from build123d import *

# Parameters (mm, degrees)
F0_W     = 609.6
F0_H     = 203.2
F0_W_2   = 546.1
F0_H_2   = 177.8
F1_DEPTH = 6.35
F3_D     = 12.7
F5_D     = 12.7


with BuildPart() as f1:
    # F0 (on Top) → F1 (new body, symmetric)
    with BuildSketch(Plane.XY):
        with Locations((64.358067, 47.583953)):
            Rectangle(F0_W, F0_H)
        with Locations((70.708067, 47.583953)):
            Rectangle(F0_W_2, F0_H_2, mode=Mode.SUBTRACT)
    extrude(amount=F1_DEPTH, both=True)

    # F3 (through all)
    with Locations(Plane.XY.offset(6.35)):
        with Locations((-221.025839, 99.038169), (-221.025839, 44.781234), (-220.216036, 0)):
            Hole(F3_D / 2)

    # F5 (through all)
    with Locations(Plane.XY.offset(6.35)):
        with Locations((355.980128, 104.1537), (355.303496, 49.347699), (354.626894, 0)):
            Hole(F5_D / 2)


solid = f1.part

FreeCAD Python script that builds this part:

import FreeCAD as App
import Part
import Sketcher
from FreeCAD import Vector
Q = App.Units.Quantity


def add_polygon(sketch, points):
    """Adds a closed chain of lines whose ends are joined by coincident constraints."""
    first, n = sketch.GeometryCount, len(points)
    for a, b in zip(points, points[1:] + points[:1]):
        sketch.addGeometry(Part.LineSegment(App.Vector(*a, 0), App.Vector(*b, 0)), False)
    for i in range(n):
        sketch.addConstraint(Sketcher.Constraint("Coincident", first + i, 2, first + (i + 1) % n, 1))

doc = App.newDocument("Part")
params = doc.addObject("Spreadsheet::Sheet", "Params")
for row, (alias, value) in enumerate([
    ("sketch1_width", "24 in"),
    ("sketch1_height", "8 in"),
    ("sketch1_height2", "7 in"),
    ("sketch1_width2", "21.5 in"),
    ("pad1_length", "0.5 in"),
    ("sketch2_diameter", "0.5 in"),
    ("hole_diameter", "0.5 in"),
    ("sketch3_diameter", "0.5 in"),
    ("hole2_diameter", "0.5 in"),
], start=1):
    params.set(f"A{row}", alias)
    params.set(f"B{row}", "=" + value)
    params.setAlias(f"B{row}", alias)

body = doc.addObject("PartDesign::Body", "Body")

# Sketch on XY plane
sketch1 = body.newObject("Sketcher::SketchObject", "Sketch")
sketch1.AttachmentSupport = (doc.getObject("XY_Plane"), [""])
sketch1.MapMode = "FlatFace"
add_polygon(sketch1, [(-240.441933, 149.183953), (-240.441933, -54.016047), (369.158067, -54.016047), (369.158067, 149.183953)])  # lines 0-3
add_polygon(sketch1, [(343.758067, -41.316047), (-202.341933, -41.316047), (-202.341933, 136.483953), (343.758067, 136.483953)])  # lines 4-7
sketch1.addConstraint([
    Sketcher.Constraint("Vertical", 0),
    Sketcher.Constraint("Horizontal", 1),
    Sketcher.Constraint("Vertical", 2),
    Sketcher.Constraint("Horizontal", 3),
    Sketcher.Constraint("Horizontal", 4),
    Sketcher.Constraint("Vertical", 5),
    Sketcher.Constraint("Horizontal", 6),
    Sketcher.Constraint("Vertical", 7),
    Sketcher.Constraint("DistanceX", 1, 1, 1, 2, Q("24 in")),
    Sketcher.Constraint("DistanceY", 0, 2, 0, 1, Q("8 in")),
    Sketcher.Constraint("DistanceY", 5, 1, 5, 2, Q("7 in")),
    Sketcher.Constraint("DistanceX", 4, 2, 4, 1, Q("21.5 in")),
    Sketcher.Constraint("DistanceX", 6, 2, 2, 2, Q("1 in")),
    Sketcher.Constraint("DistanceY", 0, 2, 4, 2, Q("0.5 in")),
    Sketcher.Constraint("DistanceX", 0, 2, -1, 1, 240.441933),
    Sketcher.Constraint("DistanceY", 0, 2, -1, 1, 54.016047),
])
sketch1.setExpression("Constraints[16]", "Params.sketch1_width")
sketch1.setExpression("Constraints[17]", "Params.sketch1_height")
sketch1.setExpression("Constraints[18]", "Params.sketch1_height2")
sketch1.setExpression("Constraints[19]", "Params.sketch1_width2")
pad1 = body.newObject("PartDesign::Pad", "Pad")
pad1.Profile = sketch1
pad1.setExpression("Length", "Params.pad1_length")
pad1.Midplane = True

# Sketch on XY plane
sketch2 = body.newObject("Sketcher::SketchObject", "Sketch001")
sketch2.AttachmentSupport = (doc.getObject("XY_Plane"), [""])
sketch2.MapMode = "FlatFace"
sketch2.AttachmentOffset = App.Placement(Vector(0, 0, 0.25 * 25.4), App.Rotation())
sketch2.addGeometry([
    Part.Circle(Vector(-221.025839, 99.038169, 0), Vector(0, 0, 1), 6.35),
    Part.Circle(Vector(-221.025839, 44.781234, 0), Vector(0, 0, 1), 6.35),
    Part.Circle(Vector(-220.216036, 0, 0), Vector(0, 0, 1), 6.35),
], False)
sketch2.addConstraint([
    Sketcher.Constraint("Equal", 0, 1),
    Sketcher.Constraint("Equal", 1, 2),
    Sketcher.Constraint("PointOnObject", 2, 3, -1),
    Sketcher.Constraint("Vertical", 0, 3, 1, 3),
    Sketcher.Constraint("Diameter", 0, Q("0.5 in")),
    Sketcher.Constraint("DistanceY", 1, 3, 0, 3, Q("2.1360998 in")),
    Sketcher.Constraint("DistanceX", 0, 3, -1, 1, 221.025839),
    Sketcher.Constraint("DistanceY", -1, 1, 0, 3, 99.038169),
    Sketcher.Constraint("DistanceX", 2, 3, -1, 1, 220.216036),
])
sketch2.setExpression("Constraints[4]", "Params.sketch2_diameter")
doc.recompute()
hole = body.newObject("PartDesign::Hole", "Hole")
hole.Profile = sketch2
hole.ThreadType = "None"
hole.setExpression("Diameter", "Params.hole_diameter")
hole.DepthType = "ThroughAll"

# Sketch on XY plane
sketch3 = body.newObject("Sketcher::SketchObject", "Sketch002")
sketch3.AttachmentSupport = (doc.getObject("XY_Plane"), [""])
sketch3.MapMode = "FlatFace"
sketch3.AttachmentOffset = App.Placement(Vector(0, 0, 0.25 * 25.4), App.Rotation())
sketch3.addGeometry([
    Part.Circle(Vector(355.980128, 104.1537, 0), Vector(0, 0, 1), 6.35),
    Part.Circle(Vector(355.303496, 49.347699, 0), Vector(0, 0, 1), 6.35),
    Part.Circle(Vector(354.626894, 0, 0), Vector(0, 0, 1), 6.35),
], False)
sketch3.addConstraint([
    Sketcher.Constraint("Equal", 0, 1),
    Sketcher.Constraint("Equal", 1, 2),
    Sketcher.Constraint("PointOnObject", 2, 3, -1),
    Sketcher.Constraint("Diameter", 0, Q("0.5 in")),
    Sketcher.Constraint("DistanceY", -1, 1, 0, 3, 104.1537),
    Sketcher.Constraint("DistanceY", -1, 1, 1, 3, 49.347699),
    Sketcher.Constraint("DistanceX", -1, 1, 0, 3, 355.980128),
    Sketcher.Constraint("DistanceX", 1, 3, 0, 3, 0.676632),
    Sketcher.Constraint("DistanceX", -1, 1, 2, 3, 354.626894),
])
sketch3.setExpression("Constraints[3]", "Params.sketch3_diameter")
doc.recompute()
hole2 = body.newObject("PartDesign::Hole", "Hole001")
hole2.Profile = sketch3
hole2.ThreadType = "None"
hole2.setExpression("Diameter", "Params.hole2_diameter")
hole2.DepthType = "ThroughAll"

doc.recompute()
